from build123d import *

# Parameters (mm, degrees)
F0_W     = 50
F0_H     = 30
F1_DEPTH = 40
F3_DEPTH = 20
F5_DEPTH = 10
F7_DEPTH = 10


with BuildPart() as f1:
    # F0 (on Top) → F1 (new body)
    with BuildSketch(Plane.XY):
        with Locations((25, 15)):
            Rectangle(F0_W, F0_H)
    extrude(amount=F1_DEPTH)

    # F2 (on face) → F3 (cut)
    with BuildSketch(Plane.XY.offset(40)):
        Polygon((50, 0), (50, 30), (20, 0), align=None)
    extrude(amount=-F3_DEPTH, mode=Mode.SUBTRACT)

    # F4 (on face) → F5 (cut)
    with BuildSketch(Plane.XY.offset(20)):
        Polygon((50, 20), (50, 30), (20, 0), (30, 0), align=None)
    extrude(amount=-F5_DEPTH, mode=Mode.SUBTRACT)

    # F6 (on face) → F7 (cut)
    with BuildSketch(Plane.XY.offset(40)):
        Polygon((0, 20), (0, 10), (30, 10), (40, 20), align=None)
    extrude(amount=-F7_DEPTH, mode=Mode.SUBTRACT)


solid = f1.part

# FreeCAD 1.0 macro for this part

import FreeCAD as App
import Part
import Sketcher

doc = App.newDocument("Part")
params = doc.addObject("Spreadsheet::Sheet", "Params")
for row, (alias, value) in enumerate([
    ("sketch1_width", "50 mm"),
    ("sketch1_height", "30 mm"),
    ("pad1_length", "40 mm"),
    ("sketch2_width", "30 mm"),
    ("pocket1_length", "20 mm"),
    ("sketch3_width", "10 mm"),
    ("pocket2_length", "10 mm"),
    ("sketch4_width", "30 mm"),
    ("sketch4_width2", "40 mm"),
    ("sketch4_height", "10 mm"),
    ("pocket3_length", "10 mm"),
], start=1):
    params.set(f"A{row}", alias)
    params.set(f"B{row}", "=" + value)
    params.setAlias(f"B{row}", alias)

body = doc.addObject("PartDesign::Body", "Body")

# Sketch on XY plane
sketch1 = body.newObject("Sketcher::SketchObject", "Sketch")
sketch1.AttachmentSupport = (doc.getObject("XY_Plane"), [""])
sketch1.MapMode = "FlatFace"
sketch1.addGeometry(Part.LineSegment(App.Vector(0, 30, 0), App.Vector(0, 0, 0)), False)
sketch1.addGeometry(Part.LineSegment(App.Vector(0, 0, 0), App.Vector(50, 0, 0)), False)
sketch1.addGeometry(Part.LineSegment(App.Vector(50, 0, 0), App.Vector(50, 30, 0)), False)
sketch1.addGeometry(Part.LineSegment(App.Vector(50, 30, 0), App.Vector(0, 30, 0)), False)
sketch1.addConstraint(Sketcher.Constraint("Coincident", 0, 2, 1, 1))
sketch1.addConstraint(Sketcher.Constraint("Coincident", 1, 2, 2, 1))
sketch1.addConstraint(Sketcher.Constraint("Coincident", 2, 2, 3, 1))
sketch1.addConstraint(Sketcher.Constraint("Coincident", 3, 2, 0, 1))
sketch1.addConstraint(Sketcher.Constraint("Vertical", 0))
sketch1.addConstraint(Sketcher.Constraint("Horizontal", 1))
sketch1.addConstraint(Sketcher.Constraint("Vertical", 2))
sketch1.addConstraint(Sketcher.Constraint("Horizontal", 3))
sketch1.addConstraint(Sketcher.Constraint("Coincident", 0, 2, -1, 1))
sketch1.addConstraint(Sketcher.Constraint("DistanceX", 1, 1, 1, 2, 50.0))
sketch1.addConstraint(Sketcher.Constraint("DistanceY", 0, 2, 0, 1, 30.0))
sketch1.setExpression("Constraints[9]", "Params.sketch1_width")
sketch1.setExpression("Constraints[10]", "Params.sketch1_height")
pad1 = body.newObject("PartDesign::Pad", "Pad")
pad1.Profile = sketch1
pad1.setExpression("Length", "Params.pad1_length")

# Sketch on XY plane
sketch2 = body.newObject("Sketcher::SketchObject", "Sketch001")
sketch2.AttachmentSupport = (doc.getObject("XY_Plane"), [""])
sketch2.MapMode = "FlatFace"
sketch2.AttachmentOffset = App.Placement(App.Vector(0, 0, 40), App.Rotation())
sketch2.addGeometry(Part.LineSegment(App.Vector(50, 0, 0), App.Vector(50, 30, 0)), False)
sketch2.addGeometry(Part.LineSegment(App.Vector(50, 30, 0), App.Vector(20, 0, 0)), False)
sketch2.addGeometry(Part.LineSegment(App.Vector(20, 0, 0), App.Vector(50, 0, 0)), False)
sketch2.addConstraint(Sketcher.Constraint("Coincident", 0, 2, 1, 1))
sketch2.addConstraint(Sketcher.Constraint("Coincident", 1, 2, 2, 1))
sketch2.addConstraint(Sketcher.Constraint("Coincident", 2, 2, 0, 1))
sketch2.addConstraint(Sketcher.Constraint("Vertical", 0))
sketch2.addConstraint(Sketcher.Constraint("Horizontal", 2))
sketch2.addConstraint(Sketcher.Constraint("PointOnObject", 1, 2, -1))
sketch2.addConstraint(Sketcher.Constraint("Equal", 2, 0))
sketch2.addConstraint(Sketcher.Constraint("DistanceX", 2, 1, 2, 2, 30.0))
sketch2.addConstraint(Sketcher.Constraint("DistanceX", -1, 1, 0, 2, 50.0))
sketch2.setExpression("Constraints[7]", "Params.sketch2_width")
pocket1 = body.newObject("PartDesign::Pocket", "Pocket")
pocket1.Profile = sketch2
pocket1.setExpression("Length", "Params.pocket1_length")

# Sketch on XY plane
sketch3 = body.newObject("Sketcher::SketchObject", "Sketch002")
sketch3.AttachmentSupport = (doc.getObject("XY_Plane"), [""])
sketch3.MapMode = "FlatFace"
sketch3.AttachmentOffset = App.Placement(App.Vector(0, 0, 20), App.Rotation())
sketch3.addGeometry(Part.LineSegment(App.Vector(50, 20, 0), App.Vector(50, 30, 0)), False)
sketch3.addGeometry(Part.LineSegment(App.Vector(50, 30, 0), App.Vector(20, 0, 0)), False)
sketch3.addGeometry(Part.LineSegment(App.Vector(20, 0, 0), App.Vector(30, 0, 0)), False)
sketch3.addGeometry(Part.LineSegment(App.Vector(30, 0, 0), App.Vector(50, 20, 0)), False)
sketch3.addConstraint(Sketcher.Constraint("Coincident", 0, 2, 1, 1))
sketch3.addConstraint(Sketcher.Constraint("Coincident", 1, 2, 2, 1))
sketch3.addConstraint(Sketcher.Constraint("Coincident", 2, 2, 3, 1))
sketch3.addConstraint(Sketcher.Constraint("Coincident", 3, 2, 0, 1))
sketch3.addConstraint(Sketcher.Constraint("Vertical", 0))
sketch3.addConstraint(Sketcher.Constraint("Horizontal", 2))
sketch3.addConstraint(Sketcher.Constraint("PointOnObject", 1, 2, -1))
sketch3.addConstraint(Sketcher.Constraint("Parallel", 1, 3))
sketch3.addConstraint(Sketcher.Constraint("Equal", 2, 0))
sketch3.addConstraint(Sketcher.Constraint("DistanceX", 2, 1, 2, 2, 10.0))
sketch3.addConstraint(Sketcher.Constraint("DistanceX", -1, 1, 0, 2, 50.0))
sketch3.addConstraint(Sketcher.Constraint("DistanceY", -1, 1, 0, 2, 30.0))
sketch3.setExpression("Constraints[9]", "Params.sketch3_width")
pocket2 = body.newObject("PartDesign::Pocket", "Pocket001")
pocket2.Profile = sketch3
pocket2.setExpression("Length", "Params.pocket2_length")

# Sketch on XY plane
sketch4 = body.newObject("Sketcher::SketchObject", "Sketch003")
sketch4.AttachmentSupport = (doc.getObject("XY_Plane"), [""])
sketch4.MapMode = "FlatFace"
sketch4.AttachmentOffset = App.Placement(App.Vector(0, 0, 40), App.Rotation())
sketch4.addGeometry(Part.LineSegment(App.Vector(0, 20, 0), App.Vector(0, 10, 0)), False)
sketch4.addGeometry(Part.LineSegment(App.Vector(0, 10, 0), App.Vector(30, 10, 0)), False)
sketch4.addGeometry(Part.LineSegment(App.Vector(30, 10, 0), App.Vector(40, 20, 0)), False)
sketch4.addGeometry(Part.LineSegment(App.Vector(40, 20, 0), App.Vector(0, 20, 0)), False)
sketch4.addConstraint(Sketcher.Constraint("Coincident", 0, 2, 1, 1))
sketch4.addConstraint(Sketcher.Constraint("Coincident", 1, 2, 2, 1))
sketch4.addConstraint(Sketcher.Constraint("Coincident", 2, 2, 3, 1))
sketch4.addConstraint(Sketcher.Constraint("Coincident", 3, 2, 0, 1))
sketch4.addConstraint(Sketcher.Constraint("Vertical", 0))
sketch4.addConstraint(Sketcher.Constraint("Horizontal", 1))
sketch4.addConstraint(Sketcher.Constraint("Horizontal", 3))
sketch4.addConstraint(Sketcher.Constraint("PointOnObject", 0, 2, -2))
sketch4.addConstraint(Sketcher.Constraint("DistanceX", 1, 1, 1, 2, 30.0))
sketch4.addConstraint(Sketcher.Constraint("DistanceX", 3, 2, 3, 1, 40.0))
sketch4.addConstraint(Sketcher.Constraint("DistanceY", 0, 2, 0, 1, 10.0))
sketch4.addConstraint(Sketcher.Constraint("DistanceY", -1, 1, 0, 2, 10.0))
sketch4.setExpression("Constraints[8]", "Params.sketch4_width")
sketch4.setExpression("Constraints[9]", "Params.sketch4_width2")
sketch4.setExpression("Constraints[10]", "Params.sketch4_height")
pocket3 = body.newObject("PartDesign::Pocket", "Pocket002")
pocket3.Profile = sketch4
pocket3.setExpression("Length", "Params.pocket3_length")

doc.recompute()
